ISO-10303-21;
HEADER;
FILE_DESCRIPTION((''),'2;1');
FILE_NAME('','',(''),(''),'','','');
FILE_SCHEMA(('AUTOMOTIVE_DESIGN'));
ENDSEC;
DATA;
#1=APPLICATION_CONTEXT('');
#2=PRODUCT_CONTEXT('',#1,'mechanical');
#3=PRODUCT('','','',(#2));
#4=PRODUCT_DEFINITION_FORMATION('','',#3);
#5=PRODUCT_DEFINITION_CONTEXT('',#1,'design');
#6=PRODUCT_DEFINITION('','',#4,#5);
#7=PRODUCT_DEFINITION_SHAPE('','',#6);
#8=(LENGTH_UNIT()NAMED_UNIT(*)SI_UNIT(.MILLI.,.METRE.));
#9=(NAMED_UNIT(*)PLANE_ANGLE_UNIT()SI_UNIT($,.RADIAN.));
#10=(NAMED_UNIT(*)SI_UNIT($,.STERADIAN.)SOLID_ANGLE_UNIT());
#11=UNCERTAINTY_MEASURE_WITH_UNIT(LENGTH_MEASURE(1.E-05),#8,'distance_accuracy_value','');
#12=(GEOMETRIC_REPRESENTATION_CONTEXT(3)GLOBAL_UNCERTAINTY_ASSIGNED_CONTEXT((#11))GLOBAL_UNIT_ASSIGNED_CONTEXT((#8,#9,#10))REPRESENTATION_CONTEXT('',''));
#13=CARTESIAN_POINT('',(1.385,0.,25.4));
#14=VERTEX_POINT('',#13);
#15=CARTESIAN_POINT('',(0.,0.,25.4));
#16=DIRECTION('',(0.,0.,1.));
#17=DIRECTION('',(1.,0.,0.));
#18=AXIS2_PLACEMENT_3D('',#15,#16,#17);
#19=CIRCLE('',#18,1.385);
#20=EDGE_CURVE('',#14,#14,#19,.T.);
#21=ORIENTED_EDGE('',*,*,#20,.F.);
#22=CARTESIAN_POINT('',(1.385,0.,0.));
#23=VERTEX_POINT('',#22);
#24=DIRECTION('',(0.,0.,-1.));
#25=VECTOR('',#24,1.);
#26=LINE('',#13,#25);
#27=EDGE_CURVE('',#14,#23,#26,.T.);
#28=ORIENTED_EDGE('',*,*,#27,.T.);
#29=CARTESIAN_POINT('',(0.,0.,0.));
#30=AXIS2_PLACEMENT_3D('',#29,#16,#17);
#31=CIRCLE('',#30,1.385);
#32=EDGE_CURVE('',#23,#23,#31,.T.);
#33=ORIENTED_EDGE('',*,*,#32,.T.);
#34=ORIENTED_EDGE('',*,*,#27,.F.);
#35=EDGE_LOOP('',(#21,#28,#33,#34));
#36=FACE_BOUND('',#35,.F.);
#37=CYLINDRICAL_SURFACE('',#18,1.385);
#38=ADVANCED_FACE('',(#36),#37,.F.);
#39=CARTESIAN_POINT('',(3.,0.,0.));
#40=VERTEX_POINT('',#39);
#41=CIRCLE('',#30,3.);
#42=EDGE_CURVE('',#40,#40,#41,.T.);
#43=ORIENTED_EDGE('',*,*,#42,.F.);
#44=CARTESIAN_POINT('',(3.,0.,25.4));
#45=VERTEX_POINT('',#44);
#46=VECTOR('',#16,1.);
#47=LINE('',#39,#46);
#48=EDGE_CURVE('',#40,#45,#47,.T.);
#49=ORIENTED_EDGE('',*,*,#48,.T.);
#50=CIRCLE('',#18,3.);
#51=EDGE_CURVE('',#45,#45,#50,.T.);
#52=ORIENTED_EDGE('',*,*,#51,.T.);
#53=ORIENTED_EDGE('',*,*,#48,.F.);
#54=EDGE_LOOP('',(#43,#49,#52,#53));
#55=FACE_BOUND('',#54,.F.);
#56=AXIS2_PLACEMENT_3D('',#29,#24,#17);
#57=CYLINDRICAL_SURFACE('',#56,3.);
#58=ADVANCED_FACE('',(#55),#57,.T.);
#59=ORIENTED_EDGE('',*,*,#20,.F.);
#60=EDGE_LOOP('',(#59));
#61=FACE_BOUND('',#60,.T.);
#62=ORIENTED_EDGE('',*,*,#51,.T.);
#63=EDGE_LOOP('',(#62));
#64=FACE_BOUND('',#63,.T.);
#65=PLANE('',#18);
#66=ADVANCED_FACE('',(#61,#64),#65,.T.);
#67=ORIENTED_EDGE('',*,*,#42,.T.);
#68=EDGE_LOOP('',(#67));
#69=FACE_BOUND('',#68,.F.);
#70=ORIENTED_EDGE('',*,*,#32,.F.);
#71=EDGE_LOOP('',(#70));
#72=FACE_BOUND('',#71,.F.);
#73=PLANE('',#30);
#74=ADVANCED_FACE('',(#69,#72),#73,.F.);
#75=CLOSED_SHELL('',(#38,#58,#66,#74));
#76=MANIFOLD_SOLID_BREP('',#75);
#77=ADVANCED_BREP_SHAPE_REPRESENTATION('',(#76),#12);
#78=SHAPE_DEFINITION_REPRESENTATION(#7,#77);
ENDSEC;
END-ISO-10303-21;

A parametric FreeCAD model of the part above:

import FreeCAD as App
import Part
import Sketcher
Q = App.Units.Quantity

doc = App.newDocument("Part")
body = doc.addObject("PartDesign::Body", "Body")

# Sketch on XY plane
sketch1 = body.newObject("Sketcher::SketchObject", "Sketch")
sketch1.AttachmentSupport = (doc.getObject("XY_Plane"), [""])
sketch1.MapMode = "FlatFace"
sketch1.addGeometry(Part.Circle(App.Vector(0, 0, 0), App.Vector(0, 0, 1), 3), False)
sketch1.addConstraint([
    Sketcher.Constraint("Coincident", 0, 3, -1, 1),
    Sketcher.Constraint("Diameter", 0, Q("6 mm")),
])
pad1 = body.newObject("PartDesign::Pad", "Pad")
pad1.Profile = sketch1
pad1.Length = 25.4

# Sketch on XY plane
sketch2 = body.newObject("Sketcher::SketchObject", "Sketch001")
sketch2.AttachmentSupport = (doc.getObject("XY_Plane"), [""])
sketch2.MapMode = "FlatFace"
sketch2.AttachmentOffset = App.Placement(App.Vector(0, 0, 25.4), App.Rotation())
sketch2.addGeometry(Part.Circle(App.Vector(0, 0, 0), App.Vector(0, 0, 1), 1.385), False)
sketch2.addConstraint([
    Sketcher.Constraint("Coincident", 0, 3, -1, 1),
    Sketcher.Constraint("Diameter", 0, Q("2.77 mm")),
])
pocket1 = body.newObject("PartDesign::Pocket", "Pocket")
pocket1.Profile = sketch2
pocket1.Type = "ThroughAll"

doc.recompute()
